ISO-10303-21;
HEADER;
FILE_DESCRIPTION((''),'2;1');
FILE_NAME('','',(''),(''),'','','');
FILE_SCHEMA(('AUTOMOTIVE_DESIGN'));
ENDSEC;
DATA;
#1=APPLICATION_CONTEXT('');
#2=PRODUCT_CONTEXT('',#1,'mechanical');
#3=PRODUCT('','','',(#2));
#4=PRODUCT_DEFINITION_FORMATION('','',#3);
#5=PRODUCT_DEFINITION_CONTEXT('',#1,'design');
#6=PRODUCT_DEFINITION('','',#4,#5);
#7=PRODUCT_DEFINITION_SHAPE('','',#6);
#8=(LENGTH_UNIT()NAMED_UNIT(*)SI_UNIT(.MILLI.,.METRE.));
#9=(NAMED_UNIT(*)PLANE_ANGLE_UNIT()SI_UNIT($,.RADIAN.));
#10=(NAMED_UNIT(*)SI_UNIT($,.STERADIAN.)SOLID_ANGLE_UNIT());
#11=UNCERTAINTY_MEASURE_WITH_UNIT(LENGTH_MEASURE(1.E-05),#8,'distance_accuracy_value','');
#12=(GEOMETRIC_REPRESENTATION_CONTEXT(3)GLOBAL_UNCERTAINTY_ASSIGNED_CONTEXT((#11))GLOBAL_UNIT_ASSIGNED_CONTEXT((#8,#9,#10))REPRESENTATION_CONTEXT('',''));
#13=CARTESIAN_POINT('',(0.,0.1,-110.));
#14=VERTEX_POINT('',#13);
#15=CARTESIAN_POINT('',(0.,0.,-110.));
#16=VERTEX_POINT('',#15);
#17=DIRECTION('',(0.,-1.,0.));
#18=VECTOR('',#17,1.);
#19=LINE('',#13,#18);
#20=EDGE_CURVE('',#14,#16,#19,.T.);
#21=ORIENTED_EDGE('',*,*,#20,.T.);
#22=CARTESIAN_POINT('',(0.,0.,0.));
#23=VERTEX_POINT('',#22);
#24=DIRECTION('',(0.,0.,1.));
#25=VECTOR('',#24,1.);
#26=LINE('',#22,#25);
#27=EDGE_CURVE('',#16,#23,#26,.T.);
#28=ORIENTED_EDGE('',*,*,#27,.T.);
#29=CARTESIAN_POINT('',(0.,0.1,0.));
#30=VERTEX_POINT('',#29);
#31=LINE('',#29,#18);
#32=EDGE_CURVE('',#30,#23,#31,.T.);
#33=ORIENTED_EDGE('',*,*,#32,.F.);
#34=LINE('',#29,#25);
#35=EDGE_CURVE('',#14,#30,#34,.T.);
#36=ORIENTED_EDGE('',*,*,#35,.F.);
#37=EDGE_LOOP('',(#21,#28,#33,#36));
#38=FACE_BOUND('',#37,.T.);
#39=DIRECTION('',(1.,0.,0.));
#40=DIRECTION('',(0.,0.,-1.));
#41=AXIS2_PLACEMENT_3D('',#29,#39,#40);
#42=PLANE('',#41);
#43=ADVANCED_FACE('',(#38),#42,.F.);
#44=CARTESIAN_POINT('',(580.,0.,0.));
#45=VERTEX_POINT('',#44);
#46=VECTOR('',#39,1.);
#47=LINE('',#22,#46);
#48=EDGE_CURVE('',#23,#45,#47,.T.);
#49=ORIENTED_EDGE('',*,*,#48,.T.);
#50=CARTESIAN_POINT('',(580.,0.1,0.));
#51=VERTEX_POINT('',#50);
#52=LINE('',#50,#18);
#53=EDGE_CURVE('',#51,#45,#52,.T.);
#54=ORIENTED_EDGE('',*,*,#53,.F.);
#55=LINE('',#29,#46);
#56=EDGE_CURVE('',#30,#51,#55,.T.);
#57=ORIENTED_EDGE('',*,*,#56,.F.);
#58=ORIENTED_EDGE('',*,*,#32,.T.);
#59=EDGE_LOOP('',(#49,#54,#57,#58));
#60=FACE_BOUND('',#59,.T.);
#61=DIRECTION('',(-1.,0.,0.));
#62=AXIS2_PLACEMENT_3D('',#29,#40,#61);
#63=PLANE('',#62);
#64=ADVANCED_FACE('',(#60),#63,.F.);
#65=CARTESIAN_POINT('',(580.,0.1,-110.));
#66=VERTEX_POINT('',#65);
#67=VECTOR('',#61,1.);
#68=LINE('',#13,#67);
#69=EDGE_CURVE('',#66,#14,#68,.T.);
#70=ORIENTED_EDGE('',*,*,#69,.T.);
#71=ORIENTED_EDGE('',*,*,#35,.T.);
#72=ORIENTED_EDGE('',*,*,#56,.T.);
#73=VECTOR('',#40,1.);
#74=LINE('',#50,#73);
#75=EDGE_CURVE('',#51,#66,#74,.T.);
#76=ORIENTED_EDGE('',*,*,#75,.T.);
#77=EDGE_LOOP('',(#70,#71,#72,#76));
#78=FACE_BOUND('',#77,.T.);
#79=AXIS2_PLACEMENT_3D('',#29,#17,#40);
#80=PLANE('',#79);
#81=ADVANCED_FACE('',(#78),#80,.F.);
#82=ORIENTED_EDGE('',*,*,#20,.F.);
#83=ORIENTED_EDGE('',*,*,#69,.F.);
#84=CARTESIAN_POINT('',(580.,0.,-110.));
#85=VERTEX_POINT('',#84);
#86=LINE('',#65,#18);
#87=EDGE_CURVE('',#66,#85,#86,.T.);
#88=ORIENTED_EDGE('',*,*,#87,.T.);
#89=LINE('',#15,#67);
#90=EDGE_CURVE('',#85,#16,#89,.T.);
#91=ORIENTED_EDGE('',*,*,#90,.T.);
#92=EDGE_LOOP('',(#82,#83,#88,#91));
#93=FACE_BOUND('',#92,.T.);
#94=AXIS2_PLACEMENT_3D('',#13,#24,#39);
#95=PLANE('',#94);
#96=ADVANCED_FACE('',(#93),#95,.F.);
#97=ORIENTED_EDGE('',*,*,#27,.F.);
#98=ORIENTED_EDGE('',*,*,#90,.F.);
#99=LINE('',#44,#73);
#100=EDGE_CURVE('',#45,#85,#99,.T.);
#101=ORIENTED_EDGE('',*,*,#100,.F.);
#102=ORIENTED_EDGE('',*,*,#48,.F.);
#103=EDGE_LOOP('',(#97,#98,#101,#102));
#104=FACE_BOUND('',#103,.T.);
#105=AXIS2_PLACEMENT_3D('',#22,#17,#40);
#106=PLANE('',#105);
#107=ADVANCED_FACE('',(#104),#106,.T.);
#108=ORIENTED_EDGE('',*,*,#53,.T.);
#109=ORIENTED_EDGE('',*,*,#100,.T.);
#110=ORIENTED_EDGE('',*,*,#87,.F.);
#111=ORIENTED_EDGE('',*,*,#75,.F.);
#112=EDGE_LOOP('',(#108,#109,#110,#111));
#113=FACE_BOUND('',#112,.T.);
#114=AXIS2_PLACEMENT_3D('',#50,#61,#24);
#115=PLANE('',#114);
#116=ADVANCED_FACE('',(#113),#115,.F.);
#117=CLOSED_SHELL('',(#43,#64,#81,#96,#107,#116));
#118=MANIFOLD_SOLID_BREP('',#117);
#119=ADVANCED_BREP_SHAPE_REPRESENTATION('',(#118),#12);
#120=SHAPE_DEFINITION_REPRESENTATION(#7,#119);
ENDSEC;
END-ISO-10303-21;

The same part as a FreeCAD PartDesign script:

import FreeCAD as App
import Part
import Sketcher

doc = App.newDocument("Part")
body = doc.addObject("PartDesign::Body", "Body")

sketch1 = body.newObject("Sketcher::SketchObject", "Sketch")
sketch1.AttachmentSupport = (doc.getObject("XZ_Plane"), [""])
sketch1.MapMode = "FlatFace"
sketch1.addGeometry(Part.LineSegment(App.Vector(0, -110, 0), App.Vector(0, 0, 0)), False)
sketch1.addGeometry(Part.LineSegment(App.Vector(0, 0, 0), App.Vector(580, 0, 0)), False)
sketch1.addGeometry(Part.LineSegment(App.Vector(580, 0, 0), App.Vector(580, -110, 0)), False)
sketch1.addGeometry(Part.LineSegment(App.Vector(580, -110, 0), App.Vector(0, -110, 0)), False)
sketch1.addConstraint(Sketcher.Constraint("Coincident", 0, 2, 1, 1))
sketch1.addConstraint(Sketcher.Constraint("Coincident", 1, 2, 2, 1))
sketch1.addConstraint(Sketcher.Constraint("Coincident", 2, 2, 3, 1))
sketch1.addConstraint(Sketcher.Constraint("Coincident", 3, 2, 0, 1))
sketch1.addConstraint(Sketcher.Constraint("Vertical", 0))
sketch1.addConstraint(Sketcher.Constraint("Horizontal", 1))
sketch1.addConstraint(Sketcher.Constraint("Vertical", 2))
sketch1.addConstraint(Sketcher.Constraint("Horizontal", 3))
sketch1.addConstraint(Sketcher.Constraint("Coincident", 0, 2, -1, 1))
sketch1.addConstraint(Sketcher.Constraint("DistanceX", 1, 1, 1, 2, 580.0))
sketch1.addConstraint(Sketcher.Constraint("DistanceY", 0, 1, 0, 2, 110.0))
pad1 = body.newObject("PartDesign::Pad", "Pad")
pad1.Profile = sketch1
pad1.Length = 0.1
pad1.Reversed = True

doc.recompute()
